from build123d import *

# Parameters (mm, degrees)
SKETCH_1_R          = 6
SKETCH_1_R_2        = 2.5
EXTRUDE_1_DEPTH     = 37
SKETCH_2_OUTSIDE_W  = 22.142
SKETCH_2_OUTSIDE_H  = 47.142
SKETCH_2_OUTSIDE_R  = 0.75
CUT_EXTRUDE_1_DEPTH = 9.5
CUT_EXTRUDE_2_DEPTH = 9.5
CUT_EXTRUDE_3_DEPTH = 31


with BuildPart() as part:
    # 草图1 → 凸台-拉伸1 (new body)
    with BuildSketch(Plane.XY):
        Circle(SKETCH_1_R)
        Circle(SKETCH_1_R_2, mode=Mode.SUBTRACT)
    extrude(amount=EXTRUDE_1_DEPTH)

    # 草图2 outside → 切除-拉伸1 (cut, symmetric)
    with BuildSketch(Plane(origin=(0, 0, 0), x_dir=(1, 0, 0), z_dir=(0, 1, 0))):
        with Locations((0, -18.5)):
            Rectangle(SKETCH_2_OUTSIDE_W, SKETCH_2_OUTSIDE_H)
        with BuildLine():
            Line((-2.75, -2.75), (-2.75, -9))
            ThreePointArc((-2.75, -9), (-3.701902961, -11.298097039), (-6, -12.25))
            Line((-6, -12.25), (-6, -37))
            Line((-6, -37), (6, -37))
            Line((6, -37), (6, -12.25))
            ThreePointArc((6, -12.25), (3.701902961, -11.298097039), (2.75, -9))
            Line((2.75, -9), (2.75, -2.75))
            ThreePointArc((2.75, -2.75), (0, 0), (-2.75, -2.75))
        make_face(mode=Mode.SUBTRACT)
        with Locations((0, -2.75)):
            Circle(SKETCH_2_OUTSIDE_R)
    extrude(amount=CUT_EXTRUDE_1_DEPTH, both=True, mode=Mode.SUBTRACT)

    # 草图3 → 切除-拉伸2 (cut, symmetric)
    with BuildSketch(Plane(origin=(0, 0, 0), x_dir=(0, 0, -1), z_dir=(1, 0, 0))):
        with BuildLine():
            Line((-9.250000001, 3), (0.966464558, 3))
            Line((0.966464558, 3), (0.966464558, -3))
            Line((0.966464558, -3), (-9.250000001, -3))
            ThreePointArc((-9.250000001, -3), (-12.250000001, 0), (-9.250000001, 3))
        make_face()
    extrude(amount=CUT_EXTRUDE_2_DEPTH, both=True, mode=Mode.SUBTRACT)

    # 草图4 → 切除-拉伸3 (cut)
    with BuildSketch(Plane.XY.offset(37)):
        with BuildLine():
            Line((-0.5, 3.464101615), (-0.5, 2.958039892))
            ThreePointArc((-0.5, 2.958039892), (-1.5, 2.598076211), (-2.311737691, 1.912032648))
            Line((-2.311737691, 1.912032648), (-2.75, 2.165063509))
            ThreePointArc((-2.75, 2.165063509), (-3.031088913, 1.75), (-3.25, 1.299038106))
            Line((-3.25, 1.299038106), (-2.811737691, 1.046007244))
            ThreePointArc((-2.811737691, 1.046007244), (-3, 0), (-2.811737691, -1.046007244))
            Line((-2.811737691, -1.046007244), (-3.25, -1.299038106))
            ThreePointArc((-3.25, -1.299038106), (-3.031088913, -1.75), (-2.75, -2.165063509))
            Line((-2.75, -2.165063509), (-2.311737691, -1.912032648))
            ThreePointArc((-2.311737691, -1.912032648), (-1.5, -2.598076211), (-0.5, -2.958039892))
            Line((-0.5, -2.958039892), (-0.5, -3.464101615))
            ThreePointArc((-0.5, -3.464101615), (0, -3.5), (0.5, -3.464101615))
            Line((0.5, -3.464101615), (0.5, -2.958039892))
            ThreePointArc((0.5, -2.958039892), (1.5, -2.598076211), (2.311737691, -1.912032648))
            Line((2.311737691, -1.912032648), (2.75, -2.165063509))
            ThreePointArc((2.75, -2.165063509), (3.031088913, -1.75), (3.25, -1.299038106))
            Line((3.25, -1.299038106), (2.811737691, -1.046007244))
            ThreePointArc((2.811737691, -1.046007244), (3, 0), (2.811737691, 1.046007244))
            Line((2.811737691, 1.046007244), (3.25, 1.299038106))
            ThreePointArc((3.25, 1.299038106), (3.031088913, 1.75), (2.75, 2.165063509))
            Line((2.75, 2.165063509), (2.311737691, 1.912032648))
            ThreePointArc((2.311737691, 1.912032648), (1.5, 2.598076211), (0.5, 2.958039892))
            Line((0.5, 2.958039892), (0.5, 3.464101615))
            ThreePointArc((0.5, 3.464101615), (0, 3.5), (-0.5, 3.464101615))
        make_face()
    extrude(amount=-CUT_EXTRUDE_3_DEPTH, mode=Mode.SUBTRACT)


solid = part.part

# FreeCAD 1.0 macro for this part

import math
import FreeCAD as App
import Part
import Sketcher
from FreeCAD import Vector
Q = App.Units.Quantity


def add_polygon(sketch, points):
    """Adds a closed chain of lines whose ends are joined by coincident constraints."""
    first, n = sketch.GeometryCount, len(points)
    for a, b in zip(points, points[1:] + points[:1]):
        sketch.addGeometry(Part.LineSegment(App.Vector(*a, 0), App.Vector(*b, 0)), False)
    for i in range(n):
        sketch.addConstraint(Sketcher.Constraint("Coincident", first + i, 2, first + (i + 1) % n, 1))

doc = App.newDocument("Part")
params = doc.addObject("Spreadsheet::Sheet", "Params")
for row, (alias, value) in enumerate([
    ("sketch1_diameter", "12 mm"),
    ("sketch1_diameter2", "5 mm"),
    ("pad1_length", "37 mm"),
    ("sketch2_diameter", "1.5 mm"),
    ("sketch2_width", "12 mm"),
    ("sketch2_radius", "2.75 mm"),
    ("sketch2_radius2", "3.25 mm"),
    ("sketch2_height", "6.25 mm"),
    ("pocket1_length", "19 mm"),
    ("sketch3_radius", "3 mm"),
    ("pocket2_length", "19 mm"),
    ("sketch4_radius", "3 mm"),
    ("sketch4_radius2", "3.5 mm"),
    ("pocket3_length", "31 mm"),
], start=1):
    params.set(f"A{row}", alias)
    params.set(f"B{row}", "=" + value)
    params.setAlias(f"B{row}", alias)

body = doc.addObject("PartDesign::Body", "Body")

# Sketch on XY plane
sketch1 = body.newObject("Sketcher::SketchObject", "Sketch")
sketch1.AttachmentSupport = (doc.getObject("XY_Plane"), [""])
sketch1.MapMode = "FlatFace"
sketch1.addGeometry(Part.Circle(Vector(0, 0, 0), Vector(0, 0, 1), 6), False)
sketch1.addGeometry(Part.Circle(Vector(0, 0, 0), Vector(0, 0, 1), 2.5), False)
sketch1.addConstraint(Sketcher.Constraint("Coincident", 0, 3, -1, 1))
sketch1.addConstraint(Sketcher.Constraint("Coincident", 1, 3, -1, 1))
sketch1.addConstraint(Sketcher.Constraint("Diameter", 0, Q("12 mm")))
sketch1.addConstraint(Sketcher.Constraint("Diameter", 1, Q("5 mm")))
sketch1.setExpression("Constraints[2]", "Params.sketch1_diameter")
sketch1.setExpression("Constraints[3]", "Params.sketch1_diameter2")
pad1 = body.newObject("PartDesign::Pad", "Pad")
pad1.Profile = sketch1
pad1.setExpression("Length", "Params.pad1_length")

# Sketch on XZ plane
sketch2 = body.newObject("Sketcher::SketchObject", "Sketch001")
sketch2.AttachmentSupport = (doc.getObject("XZ_Plane"), [""])
sketch2.MapMode = "FlatFace"
add_polygon(sketch2, [(-11.1, -5.1), (-11.1, 42.1), (11.1, 42.1), (11.1, -5.1)])  # lines 0-3
sketch2.addGeometry(Part.LineSegment(Vector(-2.8, 9, 0), Vector(-2.8, 2.8, 0)), False)  # 4
sketch2.addGeometry(Part.ArcOfCircle(Part.Circle(Vector(0, 2.8, 0), Vector(0, 0, 1), 2.8), math.radians(180), math.radians(360)), False)  # 5
sketch2.addGeometry(Part.LineSegment(Vector(2.8, 2.8, 0), Vector(2.8, 9, 0)), False)  # 6
sketch2.addGeometry(Part.ArcOfCircle(Part.Circle(Vector(6, 9, 0), Vector(0, 0, 1), 3.2), math.radians(90), math.radians(180)), False)  # 7
sketch2.addGeometry(Part.LineSegment(Vector(6, 12.2, 0), Vector(6, 37, 0)), False)  # 8
sketch2.addGeometry(Part.LineSegment(Vector(6, 37, 0), Vector(-6, 37, 0)), False)  # 9
sketch2.addGeometry(Part.LineSegment(Vector(-6, 37, 0), Vector(-6, 12.2, 0)), False)  # 10
sketch2.addGeometry(Part.ArcOfCircle(Part.Circle(Vector(-6, 9, 0), Vector(0, 0, 1), 3.2), math.radians(0), math.radians(90)), False)  # 11
sketch2.addGeometry(Part.Circle(Vector(0, 2.8, 0), Vector(0, 0, 1), 0.8), False)  # 12
sketch2.addConstraint(Sketcher.Constraint("Tangent", 4, 2, 5, 1))
sketch2.addConstraint(Sketcher.Constraint("Tangent", 5, 2, 6, 1))
sketch2.addConstraint(Sketcher.Constraint("Tangent", 6, 2, 7, 2))
sketch2.addConstraint(Sketcher.Constraint("Coincident", 7, 1, 8, 1))
sketch2.addConstraint(Sketcher.Constraint("Coincident", 8, 2, 9, 1))
sketch2.addConstraint(Sketcher.Constraint("Coincident", 9, 2, 10, 1))
sketch2.addConstraint(Sketcher.Constraint("Coincident", 10, 2, 11, 2))
sketch2.addConstraint(Sketcher.Constraint("Tangent", 11, 1, 4, 1))
sketch2.addConstraint(Sketcher.Constraint("Vertical", 0))
sketch2.addConstraint(Sketcher.Constraint("Horizontal", 1))
sketch2.addConstraint(Sketcher.Constraint("Vertical", 2))
sketch2.addConstraint(Sketcher.Constraint("Horizontal", 3))
sketch2.addConstraint(Sketcher.Constraint("Vertical", 4))
sketch2.addConstraint(Sketcher.Constraint("Vertical", 6))
sketch2.addConstraint(Sketcher.Constraint("Vertical", 8))
sketch2.addConstraint(Sketcher.Constraint("Horizontal", 9))
sketch2.addConstraint(Sketcher.Constraint("Vertical", 10))
sketch2.addConstraint(Sketcher.Constraint("Coincident", 12, 3, 5, 3))
sketch2.addConstraint(Sketcher.Constraint("Equal", 7, 11))
sketch2.addConstraint(Sketcher.Constraint("Symmetric", 7, 3, 11, 3, -2))
sketch2.addConstraint(Sketcher.Constraint("Vertical", 11, 3, 9, 2))
sketch2.addConstraint(Sketcher.Constraint("Diameter", 12, Q("1.5 mm")))
sketch2.addConstraint(Sketcher.Constraint("DistanceX", 9, 2, 9, 1, Q("12 mm")))
sketch2.addConstraint(Sketcher.Constraint("Radius", 5, Q("2.75 mm")))
sketch2.addConstraint(Sketcher.Constraint("Radius", 7, Q("3.25 mm")))
sketch2.addConstraint(Sketcher.Constraint("DistanceY", -1, 1, 7, 3, Q("9 mm")))
sketch2.addConstraint(Sketcher.Constraint("DistanceY", -1, 1, 8, 2, Q("37 mm")))
sketch2.addConstraint(Sketcher.Constraint("DistanceY", 4, 2, 4, 1, Q("6.25 mm")))
sketch2.addConstraint(Sketcher.Constraint("DistanceX", 1, 1, 1, 2, Q("22.142 mm")))
sketch2.addConstraint(Sketcher.Constraint("DistanceY", 0, 1, 0, 2, Q("47.142 mm")))
sketch2.addConstraint(Sketcher.Constraint("DistanceX", 0, 2, -1, 1, Q("11.071 mm")))
sketch2.addConstraint(Sketcher.Constraint("DistanceY", -1, 1, 0, 2, Q("42.071 mm")))
sketch2.setExpression("Constraints[25]", "Params.sketch2_diameter")
sketch2.setExpression("Constraints[26]", "Params.sketch2_width")
sketch2.setExpression("Constraints[27]", "Params.sketch2_radius")
sketch2.setExpression("Constraints[28]", "Params.sketch2_radius2")
sketch2.setExpression("Constraints[31]", "Params.sketch2_height")
pocket1 = body.newObject("PartDesign::Pocket", "Pocket")
pocket1.Profile = sketch2
pocket1.setExpression("Length", "Params.pocket1_length")
pocket1.Midplane = True

# Sketch on YZ plane
sketch3 = body.newObject("Sketcher::SketchObject", "Sketch002")
sketch3.AttachmentSupport = (doc.getObject("YZ_Plane"), [""])
sketch3.MapMode = "FlatFace"
sketch3.addGeometry(Part.LineSegment(Vector(3, -1, 0), Vector(3, 9.3, 0)), False)
sketch3.addGeometry(Part.ArcOfCircle(Part.Circle(Vector(0, 9.3, 0), Vector(0, 0, 1), 3), math.radians(0), math.radians(180)), False)
sketch3.addGeometry(Part.LineSegment(Vector(-3, 9.3, 0), Vector(-3, -1, 0)), False)
sketch3.addGeometry(Part.LineSegment(Vector(-3, -1, 0), Vector(3, -1, 0)), False)
sketch3.addConstraint(Sketcher.Constraint("Tangent", 0, 2, 1, 1))
sketch3.addConstraint(Sketcher.Constraint("Tangent", 1, 2, 2, 1))
sketch3.addConstraint(Sketcher.Constraint("Coincident", 2, 2, 3, 1))
sketch3.addConstraint(Sketcher.Constraint("Coincident", 3, 2, 0, 1))
sketch3.addConstraint(Sketcher.Constraint("Vertical", 0))
sketch3.addConstraint(Sketcher.Constraint("Vertical", 2))
sketch3.addConstraint(Sketcher.Constraint("Horizontal", 3))
sketch3.addConstraint(Sketcher.Constraint("PointOnObject", 1, 3, -2))
sketch3.addConstraint(Sketcher.Constraint("Radius", 1, Q("3 mm")))
sketch3.addConstraint(Sketcher.Constraint("DistanceY", -1, 1, 1, 3, Q("9.25 mm")))
sketch3.addConstraint(Sketcher.Constraint("DistanceY", 0, 1, 0, 2, Q("10.216465 mm")))
sketch3.setExpression("Constraints[8]", "Params.sketch3_radius")
pocket2 = body.newObject("PartDesign::Pocket", "Pocket001")
pocket2.Profile = sketch3
pocket2.setExpression("Length", "Params.pocket2_length")
pocket2.Midplane = True

# Sketch on XY plane
sketch4 = body.newObject("Sketcher::SketchObject", "Sketch003")
sketch4.AttachmentSupport = (doc.getObject("XY_Plane"), [""])
sketch4.MapMode = "FlatFace"
sketch4.AttachmentOffset = App.Placement(Vector(0, 0, 37), App.Rotation())
sketch4.addGeometry(Part.LineSegment(Vector(-0.5, 3.5, 0), Vector(-0.5, 3, 0)), False)
sketch4.addGeometry(Part.ArcOfCircle(Part.Circle(Vector(0, 0, 0), Vector(0, 0, 1), 3), math.radians(100), math.radians(140)), False)
sketch4.addGeometry(Part.LineSegment(Vector(-2.3, 1.9, 0), Vector(-2.8, 2.2, 0)), False)
sketch4.addGeometry(Part.ArcOfCircle(Part.Circle(Vector(0, 0, 0), Vector(0, 0, 1), 3.5), math.radians(141.79), math.radians(158.21)), False)
sketch4.addGeometry(Part.LineSegment(Vector(-3.2, 1.3, 0), Vector(-2.8, 1, 0)), False)
sketch4.addGeometry(Part.ArcOfCircle(Part.Circle(Vector(0, 0, 0), Vector(0, 0, 1), 3), math.radians(160), math.radians(200)), False)
sketch4.addGeometry(Part.LineSegment(Vector(-2.8, -1, 0), Vector(-3.2, -1.3, 0)), False)
sketch4.addGeometry(Part.ArcOfCircle(Part.Circle(Vector(0, 0, 0), Vector(0, 0, 1), 3.5), math.radians(-158.21), math.radians(-141.79)), False)
sketch4.addGeometry(Part.LineSegment(Vector(-2.8, -2.2, 0), Vector(-2.3, -1.9, 0)), False)
sketch4.addGeometry(Part.ArcOfCircle(Part.Circle(Vector(0, 0, 0), Vector(0, 0, 1), 3), math.radians(-140), math.radians(-100)), False)
sketch4.addGeometry(Part.LineSegment(Vector(-0.5, -3, 0), Vector(-0.5, -3.5, 0)), False)
sketch4.addGeometry(Part.ArcOfCircle(Part.Circle(Vector(0, 0, 0), Vector(0, 0, 1), 3.5), math.radians(-98.21), math.radians(-81.79)), False)
sketch4.addGeometry(Part.LineSegment(Vector(0.5, -3.5, 0), Vector(0.5, -3, 0)), False)
sketch4.addGeometry(Part.ArcOfCircle(Part.Circle(Vector(0, 0, 0), Vector(0, 0, 1), 3), math.radians(-80), math.radians(-40)), False)
sketch4.addGeometry(Part.LineSegment(Vector(2.3, -1.9, 0), Vector(2.8, -2.2, 0)), False)
sketch4.addGeometry(Part.ArcOfCircle(Part.Circle(Vector(0, 0, 0), Vector(0, 0, 1), 3.5), math.radians(-38.21), math.radians(-21.79)), False)
sketch4.addGeometry(Part.LineSegment(Vector(3.2, -1.3, 0), Vector(2.8, -1, 0)), False)
sketch4.addGeometry(Part.ArcOfCircle(Part.Circle(Vector(0, 0, 0), Vector(0, 0, 1), 3), math.radians(-20), math.radians(20)), False)
sketch4.addGeometry(Part.LineSegment(Vector(2.8, 1, 0), Vector(3.2, 1.3, 0)), False)
sketch4.addGeometry(Part.ArcOfCircle(Part.Circle(Vector(0, 0, 0), Vector(0, 0, 1), 3.5), math.radians(21.79), math.radians(38.21)), False)
sketch4.addGeometry(Part.LineSegment(Vector(2.8, 2.2, 0), Vector(2.3, 1.9, 0)), False)
sketch4.addGeometry(Part.ArcOfCircle(Part.Circle(Vector(0, 0, 0), Vector(0, 0, 1), 3), math.radians(40), math.radians(80)), False)
sketch4.addGeometry(Part.LineSegment(Vector(0.5, 3, 0), Vector(0.5, 3.5, 0)), False)
sketch4.addGeometry(Part.ArcOfCircle(Part.Circle(Vector(0, 0, 0), Vector(0, 0, 1), 3.5), math.radians(81.79), math.radians(98.21)), False)
sketch4.addConstraint(Sketcher.Constraint("Coincident", 0, 2, 1, 1))
sketch4.addConstraint(Sketcher.Constraint("Coincident", 1, 2, 2, 1))
sketch4.addConstraint(Sketcher.Constraint("Coincident", 2, 2, 3, 1))
sketch4.addConstraint(Sketcher.Constraint("Coincident", 3, 2, 4, 1))
sketch4.addConstraint(Sketcher.Constraint("Coincident", 4, 2, 5, 1))
sketch4.addConstraint(Sketcher.Constraint("Coincident", 5, 2, 6, 1))
sketch4.addConstraint(Sketcher.Constraint("Coincident", 6, 2, 7, 1))
sketch4.addConstraint(Sketcher.Constraint("Coincident", 7, 2, 8, 1))
sketch4.addConstraint(Sketcher.Constraint("Coincident", 8, 2, 9, 1))
sketch4.addConstraint(Sketcher.Constraint("Coincident", 9, 2, 10, 1))
sketch4.addConstraint(Sketcher.Constraint("Coincident", 10, 2, 11, 1))
sketch4.addConstraint(Sketcher.Constraint("Coincident", 11, 2, 12, 1))
sketch4.addConstraint(Sketcher.Constraint("Coincident", 12, 2, 13, 1))
sketch4.addConstraint(Sketcher.Constraint("Coincident", 13, 2, 14, 1))
sketch4.addConstraint(Sketcher.Constraint("Coincident", 14, 2, 15, 1))
sketch4.addConstraint(Sketcher.Constraint("Coincident", 15, 2, 16, 1))
sketch4.addConstraint(Sketcher.Constraint("Coincident", 16, 2, 17, 1))
sketch4.addConstraint(Sketcher.Constraint("Coincident", 17, 2, 18, 1))
sketch4.addConstraint(Sketcher.Constraint("Coincident", 18, 2, 19, 1))
sketch4.addConstraint(Sketcher.Constraint("Coincident", 19, 2, 20, 1))
sketch4.addConstraint(Sketcher.Constraint("Coincident", 20, 2, 21, 1))
sketch4.addConstraint(Sketcher.Constraint("Coincident", 21, 2, 22, 1))
sketch4.addConstraint(Sketcher.Constraint("Coincident", 22, 2, 23, 1))
sketch4.addConstraint(Sketcher.Constraint("Coincident", 23, 2, 0, 1))
sketch4.addConstraint(Sketcher.Constraint("Vertical", 0))
sketch4.addConstraint(Sketcher.Constraint("Vertical", 10))
sketch4.addConstraint(Sketcher.Constraint("Vertical", 12))
sketch4.addConstraint(Sketcher.Constraint("Vertical", 22))
sketch4.addConstraint(Sketcher.Constraint("Coincident", 1, 3, -1, 1))
sketch4.addConstraint(Sketcher.Constraint("Coincident", 3, 3, -1, 1))
sketch4.addConstraint(Sketcher.Constraint("Coincident", 5, 3, -1, 1))
sketch4.addConstraint(Sketcher.Constraint("Coincident", 7, 3, -1, 1))
sketch4.addConstraint(Sketcher.Constraint("Coincident", 9, 3, -1, 1))
sketch4.addConstraint(Sketcher.Constraint("Coincident", 11, 3, -1, 1))
sketch4.addConstraint(Sketcher.Constraint("Coincident", 13, 3, -1, 1))
sketch4.addConstraint(Sketcher.Constraint("Coincident", 15, 3, -1, 1))
sketch4.addConstraint(Sketcher.Constraint("Coincident", 17, 3, -1, 1))
sketch4.addConstraint(Sketcher.Constraint("Coincident", 19, 3, -1, 1))
sketch4.addConstraint(Sketcher.Constraint("Coincident", 21, 3, -1, 1))
sketch4.addConstraint(Sketcher.Constraint("Coincident", 23, 3, -1, 1))
sketch4.addConstraint(Sketcher.Constraint("Equal", 1, 5))
sketch4.addConstraint(Sketcher.Constraint("Equal", 3, 7))
sketch4.addConstraint(Sketcher.Constraint("Equal", 5, 9))
sketch4.addConstraint(Sketcher.Constraint("Equal", 7, 11))
sketch4.addConstraint(Sketcher.Constraint("Equal", 9, 13))
sketch4.addConstraint(Sketcher.Constraint("Equal", 11, 15))
sketch4.addConstraint(Sketcher.Constraint("Equal", 13, 17))
sketch4.addConstraint(Sketcher.Constraint("Equal", 15, 19))
sketch4.addConstraint(Sketcher.Constraint("Equal", 17, 21))
sketch4.addConstraint(Sketcher.Constraint("Equal", 19, 23))
sketch4.addConstraint(Sketcher.Constraint("Parallel", 2, 4))
sketch4.addConstraint(Sketcher.Constraint("Parallel", 6, 8))
sketch4.addConstraint(Sketcher.Constraint("Parallel", 4, 14))
sketch4.addConstraint(Sketcher.Constraint("Parallel", 14, 16))
sketch4.addConstraint(Sketcher.Constraint("Parallel", 8, 18))
sketch4.addConstraint(Sketcher.Constraint("Parallel", 18, 20))
sketch4.addConstraint(Sketcher.Constraint("Horizontal", 10, 2, 11, 2))
sketch4.addConstraint(Sketcher.Constraint("Horizontal", 8, 2, 13, 2))
sketch4.addConstraint(Sketcher.Constraint("Horizontal", 7, 2, 14, 2))
sketch4.addConstraint(Sketcher.Constraint("Horizontal", 6, 2, 15, 2))
sketch4.addConstraint(Sketcher.Constraint("Horizontal", 4, 2, 17, 2))
sketch4.addConstraint(Sketcher.Constraint("Horizontal", 2, 2, 19, 2))
sketch4.addConstraint(Sketcher.Constraint("Horizontal", 0, 2, 21, 2))
sketch4.addConstraint(Sketcher.Constraint("Vertical", 4, 2, 5, 2))
sketch4.addConstraint(Sketcher.Constraint("Vertical", 2, 2, 7, 2))
sketch4.addConstraint(Sketcher.Constraint("Vertical", 0, 2, 9, 2))
sketch4.addConstraint(Sketcher.Constraint("Equal", 2, 4))
sketch4.addConstraint(Sketcher.Constraint("Radius", 1, Q("3 mm")))
sketch4.addConstraint(Sketcher.Constraint("Radius", 3, Q("3.5 mm")))
sketch4.addConstraint(Sketcher.Constraint("Angle", 2, Q("150 deg")))
sketch4.addConstraint(Sketcher.Constraint("DistanceX", 10, 2, 11, 2, Q("1 mm")))
sketch4.addConstraint(Sketcher.Constraint("DistanceX", 3, 2, 2, 2, Q("0.5 mm")))
sketch4.setExpression("Constraints[67]", "Params.sketch4_radius")
sketch4.setExpression("Constraints[68]", "Params.sketch4_radius2")
pocket3 = body.newObject("PartDesign::Pocket", "Pocket002")
pocket3.Profile = sketch4
pocket3.setExpression("Length", "Params.pocket3_length")

doc.recompute()
